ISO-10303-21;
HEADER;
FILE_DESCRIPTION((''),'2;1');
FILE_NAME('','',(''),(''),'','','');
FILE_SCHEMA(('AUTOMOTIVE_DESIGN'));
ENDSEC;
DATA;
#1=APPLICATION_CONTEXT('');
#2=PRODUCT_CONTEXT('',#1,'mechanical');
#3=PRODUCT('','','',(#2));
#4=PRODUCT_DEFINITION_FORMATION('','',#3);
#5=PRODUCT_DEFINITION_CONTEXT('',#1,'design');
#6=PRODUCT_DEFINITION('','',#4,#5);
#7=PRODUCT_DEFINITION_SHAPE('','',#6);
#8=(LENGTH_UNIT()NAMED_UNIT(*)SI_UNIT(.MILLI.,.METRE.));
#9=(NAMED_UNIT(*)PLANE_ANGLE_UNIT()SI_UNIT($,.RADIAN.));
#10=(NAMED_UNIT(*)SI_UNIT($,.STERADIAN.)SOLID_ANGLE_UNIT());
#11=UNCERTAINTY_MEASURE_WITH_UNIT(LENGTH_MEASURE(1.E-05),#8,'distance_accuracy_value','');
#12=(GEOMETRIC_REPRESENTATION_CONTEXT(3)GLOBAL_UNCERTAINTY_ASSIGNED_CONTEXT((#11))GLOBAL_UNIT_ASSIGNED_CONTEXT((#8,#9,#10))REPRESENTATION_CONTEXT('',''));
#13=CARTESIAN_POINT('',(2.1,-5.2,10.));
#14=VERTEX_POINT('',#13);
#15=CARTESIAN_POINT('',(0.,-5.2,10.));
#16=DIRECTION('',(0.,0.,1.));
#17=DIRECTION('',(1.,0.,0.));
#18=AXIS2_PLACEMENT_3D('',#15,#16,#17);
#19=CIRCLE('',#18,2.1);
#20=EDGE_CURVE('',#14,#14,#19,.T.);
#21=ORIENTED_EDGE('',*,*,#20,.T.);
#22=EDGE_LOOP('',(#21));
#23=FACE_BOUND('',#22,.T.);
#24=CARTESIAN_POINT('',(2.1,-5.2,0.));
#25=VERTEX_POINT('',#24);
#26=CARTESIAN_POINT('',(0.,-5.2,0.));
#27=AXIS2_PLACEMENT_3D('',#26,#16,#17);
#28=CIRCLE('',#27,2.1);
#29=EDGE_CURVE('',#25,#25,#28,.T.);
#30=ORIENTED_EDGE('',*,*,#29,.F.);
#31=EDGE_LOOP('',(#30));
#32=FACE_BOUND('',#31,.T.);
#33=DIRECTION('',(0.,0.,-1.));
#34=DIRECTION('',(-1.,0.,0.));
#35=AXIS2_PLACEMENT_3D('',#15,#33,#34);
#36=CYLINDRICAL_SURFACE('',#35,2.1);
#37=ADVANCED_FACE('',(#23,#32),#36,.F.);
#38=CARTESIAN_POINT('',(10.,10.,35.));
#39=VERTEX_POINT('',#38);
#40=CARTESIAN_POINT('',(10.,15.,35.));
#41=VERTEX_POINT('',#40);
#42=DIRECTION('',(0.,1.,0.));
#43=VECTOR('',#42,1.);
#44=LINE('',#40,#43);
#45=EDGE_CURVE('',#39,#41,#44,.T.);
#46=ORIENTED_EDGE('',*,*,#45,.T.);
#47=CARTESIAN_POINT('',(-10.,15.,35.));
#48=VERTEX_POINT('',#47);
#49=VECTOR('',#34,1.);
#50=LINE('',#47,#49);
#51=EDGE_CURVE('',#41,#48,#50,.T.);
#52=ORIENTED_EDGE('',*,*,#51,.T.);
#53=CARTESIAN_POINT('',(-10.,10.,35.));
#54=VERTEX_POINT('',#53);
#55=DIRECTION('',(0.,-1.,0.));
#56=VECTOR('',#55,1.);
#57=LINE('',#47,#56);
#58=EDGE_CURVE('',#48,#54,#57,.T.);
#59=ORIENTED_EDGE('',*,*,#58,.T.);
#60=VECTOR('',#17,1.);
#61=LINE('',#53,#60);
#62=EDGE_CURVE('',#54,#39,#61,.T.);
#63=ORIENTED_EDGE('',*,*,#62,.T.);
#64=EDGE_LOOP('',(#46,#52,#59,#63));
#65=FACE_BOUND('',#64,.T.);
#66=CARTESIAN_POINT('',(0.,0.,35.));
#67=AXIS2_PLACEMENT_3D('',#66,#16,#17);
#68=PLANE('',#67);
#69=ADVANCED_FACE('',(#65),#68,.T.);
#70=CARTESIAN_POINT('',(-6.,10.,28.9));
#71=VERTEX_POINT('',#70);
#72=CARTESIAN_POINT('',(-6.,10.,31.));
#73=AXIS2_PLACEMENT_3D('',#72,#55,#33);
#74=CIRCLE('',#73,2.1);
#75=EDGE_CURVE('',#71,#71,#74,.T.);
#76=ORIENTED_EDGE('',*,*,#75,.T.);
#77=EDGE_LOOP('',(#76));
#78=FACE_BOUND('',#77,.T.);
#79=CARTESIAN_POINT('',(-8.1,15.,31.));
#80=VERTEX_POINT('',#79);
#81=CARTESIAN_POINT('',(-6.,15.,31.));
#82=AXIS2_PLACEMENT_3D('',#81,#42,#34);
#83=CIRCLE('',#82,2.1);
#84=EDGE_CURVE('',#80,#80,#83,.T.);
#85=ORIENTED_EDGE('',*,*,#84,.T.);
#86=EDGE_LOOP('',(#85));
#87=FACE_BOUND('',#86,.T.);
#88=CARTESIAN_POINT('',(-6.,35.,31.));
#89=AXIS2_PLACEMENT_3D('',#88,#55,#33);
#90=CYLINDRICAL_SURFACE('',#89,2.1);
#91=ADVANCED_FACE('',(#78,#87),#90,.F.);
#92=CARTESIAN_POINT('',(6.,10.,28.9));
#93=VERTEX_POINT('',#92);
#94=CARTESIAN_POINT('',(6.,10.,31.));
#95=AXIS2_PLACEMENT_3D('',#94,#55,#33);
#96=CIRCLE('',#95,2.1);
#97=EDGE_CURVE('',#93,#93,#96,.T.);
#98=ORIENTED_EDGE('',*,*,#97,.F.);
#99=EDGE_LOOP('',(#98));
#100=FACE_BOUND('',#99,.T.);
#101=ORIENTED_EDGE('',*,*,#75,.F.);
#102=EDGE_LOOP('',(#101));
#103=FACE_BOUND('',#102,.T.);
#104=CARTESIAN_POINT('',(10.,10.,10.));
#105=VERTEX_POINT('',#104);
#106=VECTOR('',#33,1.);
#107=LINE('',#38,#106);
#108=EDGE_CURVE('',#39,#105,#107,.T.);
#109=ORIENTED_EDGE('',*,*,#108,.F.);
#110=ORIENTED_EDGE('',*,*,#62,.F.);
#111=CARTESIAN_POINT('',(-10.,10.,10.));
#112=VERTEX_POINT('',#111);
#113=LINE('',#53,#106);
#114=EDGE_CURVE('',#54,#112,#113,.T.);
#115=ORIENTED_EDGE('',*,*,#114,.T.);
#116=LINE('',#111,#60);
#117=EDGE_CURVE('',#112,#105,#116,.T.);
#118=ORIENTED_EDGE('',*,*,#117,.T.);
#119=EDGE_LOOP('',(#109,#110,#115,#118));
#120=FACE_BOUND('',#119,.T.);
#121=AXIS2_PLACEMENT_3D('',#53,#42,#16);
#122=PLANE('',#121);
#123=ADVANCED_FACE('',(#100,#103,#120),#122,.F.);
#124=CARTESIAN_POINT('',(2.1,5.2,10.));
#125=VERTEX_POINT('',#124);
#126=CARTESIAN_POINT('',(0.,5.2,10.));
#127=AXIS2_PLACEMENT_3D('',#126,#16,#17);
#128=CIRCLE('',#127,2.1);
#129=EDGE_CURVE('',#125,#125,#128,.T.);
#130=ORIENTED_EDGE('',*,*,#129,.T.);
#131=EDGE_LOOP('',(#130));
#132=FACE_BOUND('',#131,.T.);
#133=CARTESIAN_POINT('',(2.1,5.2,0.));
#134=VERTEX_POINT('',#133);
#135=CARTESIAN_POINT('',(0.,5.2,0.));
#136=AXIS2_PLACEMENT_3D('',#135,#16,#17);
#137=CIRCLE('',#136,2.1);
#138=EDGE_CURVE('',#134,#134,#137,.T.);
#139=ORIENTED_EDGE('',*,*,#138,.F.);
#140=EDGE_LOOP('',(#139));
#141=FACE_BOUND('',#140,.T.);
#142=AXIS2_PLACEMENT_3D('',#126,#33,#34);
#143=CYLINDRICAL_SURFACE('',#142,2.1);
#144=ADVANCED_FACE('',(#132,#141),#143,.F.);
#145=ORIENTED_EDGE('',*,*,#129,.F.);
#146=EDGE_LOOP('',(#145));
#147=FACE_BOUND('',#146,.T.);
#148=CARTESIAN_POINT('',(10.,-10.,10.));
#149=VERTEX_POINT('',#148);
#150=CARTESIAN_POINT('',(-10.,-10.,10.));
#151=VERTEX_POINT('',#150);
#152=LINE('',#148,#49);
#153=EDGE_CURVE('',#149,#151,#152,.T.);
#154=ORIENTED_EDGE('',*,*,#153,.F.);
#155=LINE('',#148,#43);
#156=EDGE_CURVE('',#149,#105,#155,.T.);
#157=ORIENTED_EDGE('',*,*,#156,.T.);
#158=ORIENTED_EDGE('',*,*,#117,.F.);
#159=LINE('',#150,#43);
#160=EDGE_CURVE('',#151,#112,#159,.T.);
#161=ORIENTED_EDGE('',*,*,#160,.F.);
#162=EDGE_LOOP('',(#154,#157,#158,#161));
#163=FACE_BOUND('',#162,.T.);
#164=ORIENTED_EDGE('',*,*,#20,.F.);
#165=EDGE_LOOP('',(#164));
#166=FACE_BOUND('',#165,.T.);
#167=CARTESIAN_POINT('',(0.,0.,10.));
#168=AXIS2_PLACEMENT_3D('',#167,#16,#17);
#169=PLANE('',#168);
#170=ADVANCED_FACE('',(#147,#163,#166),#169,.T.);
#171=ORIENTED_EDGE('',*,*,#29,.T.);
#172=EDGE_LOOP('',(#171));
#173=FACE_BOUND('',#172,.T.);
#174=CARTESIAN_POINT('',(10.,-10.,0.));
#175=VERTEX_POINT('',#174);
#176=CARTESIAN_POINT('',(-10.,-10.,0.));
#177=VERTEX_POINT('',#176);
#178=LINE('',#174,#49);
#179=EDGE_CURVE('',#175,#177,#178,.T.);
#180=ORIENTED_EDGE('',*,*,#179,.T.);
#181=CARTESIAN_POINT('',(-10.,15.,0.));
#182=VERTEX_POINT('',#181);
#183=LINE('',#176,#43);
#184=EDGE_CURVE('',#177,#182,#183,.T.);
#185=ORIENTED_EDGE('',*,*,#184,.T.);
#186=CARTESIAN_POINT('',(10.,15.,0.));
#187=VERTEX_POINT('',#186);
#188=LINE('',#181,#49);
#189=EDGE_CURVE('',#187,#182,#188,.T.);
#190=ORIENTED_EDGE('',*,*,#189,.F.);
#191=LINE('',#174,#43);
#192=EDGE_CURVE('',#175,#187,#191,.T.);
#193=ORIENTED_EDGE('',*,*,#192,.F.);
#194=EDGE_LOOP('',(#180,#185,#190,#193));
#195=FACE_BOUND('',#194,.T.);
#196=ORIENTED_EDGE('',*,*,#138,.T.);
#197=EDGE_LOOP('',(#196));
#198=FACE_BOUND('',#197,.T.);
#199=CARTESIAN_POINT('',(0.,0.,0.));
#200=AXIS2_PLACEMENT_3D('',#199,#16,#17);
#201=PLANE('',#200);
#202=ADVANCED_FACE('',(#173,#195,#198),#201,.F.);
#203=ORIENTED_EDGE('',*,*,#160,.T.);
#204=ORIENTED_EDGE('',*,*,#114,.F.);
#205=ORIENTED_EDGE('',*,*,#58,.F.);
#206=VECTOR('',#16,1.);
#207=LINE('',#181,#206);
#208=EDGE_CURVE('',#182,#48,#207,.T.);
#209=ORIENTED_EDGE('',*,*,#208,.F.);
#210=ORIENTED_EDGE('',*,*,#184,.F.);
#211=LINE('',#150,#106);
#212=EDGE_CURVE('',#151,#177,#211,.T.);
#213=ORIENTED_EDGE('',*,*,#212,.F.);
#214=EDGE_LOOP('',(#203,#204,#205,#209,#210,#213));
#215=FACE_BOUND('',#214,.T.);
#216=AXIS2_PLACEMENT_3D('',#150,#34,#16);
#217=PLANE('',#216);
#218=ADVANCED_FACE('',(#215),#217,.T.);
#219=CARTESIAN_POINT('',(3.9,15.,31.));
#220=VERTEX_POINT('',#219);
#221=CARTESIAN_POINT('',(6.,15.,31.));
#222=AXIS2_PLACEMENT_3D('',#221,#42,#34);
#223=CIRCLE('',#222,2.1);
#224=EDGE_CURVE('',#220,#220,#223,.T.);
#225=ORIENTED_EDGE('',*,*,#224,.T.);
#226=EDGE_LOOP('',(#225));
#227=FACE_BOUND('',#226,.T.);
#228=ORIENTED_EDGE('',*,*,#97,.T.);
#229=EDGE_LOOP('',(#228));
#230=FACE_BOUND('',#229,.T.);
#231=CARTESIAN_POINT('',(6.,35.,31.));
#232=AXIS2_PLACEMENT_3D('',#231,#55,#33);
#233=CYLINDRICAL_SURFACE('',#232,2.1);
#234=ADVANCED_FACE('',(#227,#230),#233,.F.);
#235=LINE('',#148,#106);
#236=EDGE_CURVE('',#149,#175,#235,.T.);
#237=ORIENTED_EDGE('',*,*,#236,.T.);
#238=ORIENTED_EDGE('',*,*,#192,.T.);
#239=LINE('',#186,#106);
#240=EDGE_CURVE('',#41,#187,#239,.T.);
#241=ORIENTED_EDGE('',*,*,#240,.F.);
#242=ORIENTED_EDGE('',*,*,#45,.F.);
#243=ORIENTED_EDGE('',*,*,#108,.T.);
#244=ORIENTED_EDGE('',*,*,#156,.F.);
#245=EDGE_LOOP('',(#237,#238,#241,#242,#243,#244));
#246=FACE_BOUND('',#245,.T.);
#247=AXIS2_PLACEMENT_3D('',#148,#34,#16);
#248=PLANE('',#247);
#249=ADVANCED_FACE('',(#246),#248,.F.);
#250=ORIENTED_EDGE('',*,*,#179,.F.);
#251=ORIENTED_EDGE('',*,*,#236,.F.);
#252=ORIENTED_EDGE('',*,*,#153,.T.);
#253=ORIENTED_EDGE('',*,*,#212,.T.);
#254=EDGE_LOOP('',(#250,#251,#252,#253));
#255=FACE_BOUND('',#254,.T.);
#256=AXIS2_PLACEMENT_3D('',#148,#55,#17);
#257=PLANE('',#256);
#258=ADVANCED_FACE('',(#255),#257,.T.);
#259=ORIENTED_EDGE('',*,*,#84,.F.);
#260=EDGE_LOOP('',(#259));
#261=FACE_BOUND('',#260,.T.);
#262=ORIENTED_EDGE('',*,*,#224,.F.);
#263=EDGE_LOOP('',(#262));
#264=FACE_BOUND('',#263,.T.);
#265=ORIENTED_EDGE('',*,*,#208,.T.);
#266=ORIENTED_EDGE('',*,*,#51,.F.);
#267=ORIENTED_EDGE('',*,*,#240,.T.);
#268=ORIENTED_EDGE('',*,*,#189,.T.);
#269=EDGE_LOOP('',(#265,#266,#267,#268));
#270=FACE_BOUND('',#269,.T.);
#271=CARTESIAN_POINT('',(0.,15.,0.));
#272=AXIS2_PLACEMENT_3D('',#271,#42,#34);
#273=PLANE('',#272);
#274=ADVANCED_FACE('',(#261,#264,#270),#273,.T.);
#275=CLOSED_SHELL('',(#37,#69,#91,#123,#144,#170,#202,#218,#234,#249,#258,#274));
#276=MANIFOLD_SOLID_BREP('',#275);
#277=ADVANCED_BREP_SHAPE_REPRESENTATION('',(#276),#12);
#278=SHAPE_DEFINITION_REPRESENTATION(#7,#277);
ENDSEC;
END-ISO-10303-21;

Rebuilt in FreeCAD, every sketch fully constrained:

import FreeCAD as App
import Part
import Sketcher
from FreeCAD import Vector
Q = App.Units.Quantity


def add_polygon(sketch, points):
    """Adds a closed chain of lines whose ends are joined by coincident constraints."""
    first, n = sketch.GeometryCount, len(points)
    for a, b in zip(points, points[1:] + points[:1]):
        sketch.addGeometry(Part.LineSegment(App.Vector(*a, 0), App.Vector(*b, 0)), False)
    for i in range(n):
        sketch.addConstraint(Sketcher.Constraint("Coincident", first + i, 2, first + (i + 1) % n, 1))

doc = App.newDocument("Part")
body = doc.addObject("PartDesign::Body", "Body")

sketch1 = body.newObject("Sketcher::SketchObject", "Sketch")
sketch1.AttachmentSupport = (doc.getObject("XY_Plane"), [""])
sketch1.MapMode = "FlatFace"
add_polygon(sketch1, [(-10, 10), (-10, -10), (10, -10), (10, 10)])
sketch1.addGeometry(Part.Circle(Vector(0, -5.2, 0), Vector(0, 0, 1), 2.1), False)
sketch1.addGeometry(Part.Circle(Vector(0, 5.2, 0), Vector(0, 0, 1), 2.1), False)
sketch1.addConstraint([
    Sketcher.Constraint("Vertical", 0),
    Sketcher.Constraint("Horizontal", 1),
    Sketcher.Constraint("Vertical", 2),
    Sketcher.Constraint("Horizontal", 3),
    Sketcher.Constraint("Equal", 4, 5),
    Sketcher.Constraint("Symmetric", 4, 3, 5, 3, -1, 1),
    Sketcher.Constraint("Symmetric", 0, 2, 2, 2, -1, 1),
    Sketcher.Constraint("PointOnObject", 4, 3, -2),
    Sketcher.Constraint("Equal", 3, 0),
    Sketcher.Constraint("Diameter", 4, Q("4.2 mm")),
    Sketcher.Constraint("DistanceX", 1, 1, 1, 2, Q("20 mm")),
    Sketcher.Constraint("DistanceY", 4, 3, -1, 1, Q("5.2 mm")),
])
pad1 = body.newObject("PartDesign::Pad", "Pad")
pad1.Profile = sketch1
pad1.Length = 10

sketch2 = body.newObject("Sketcher::SketchObject", "Sketch001")
sketch2.AttachmentSupport = (doc.getObject("XZ_Plane"), [""])
sketch2.MapMode = "FlatFace"
sketch2.AttachmentOffset = App.Placement(Vector(0, 0, -10), App.Rotation())
add_polygon(sketch2, [(-10, 0), (-10, 10), (10, 10), (10, 0)])
sketch2.addConstraint([
    Sketcher.Constraint("Vertical", 0),
    Sketcher.Constraint("Horizontal", 1),
    Sketcher.Constraint("Vertical", 2),
    Sketcher.Constraint("Horizontal", 3),
    Sketcher.Constraint("Symmetric", 2, 2, 3, 2, -1, 1),
    Sketcher.Constraint("DistanceX", 1, 1, 1, 2, Q("20 mm")),
    Sketcher.Constraint("DistanceY", 0, 1, 0, 2, Q("10 mm")),
])
pad2 = body.newObject("PartDesign::Pad", "Pad001")
pad2.Profile = sketch2
pad2.Length = 5
pad2.Reversed = True

sketch3 = body.newObject("Sketcher::SketchObject", "Sketch002")
sketch3.AttachmentSupport = (doc.getObject("XY_Plane"), [""])
sketch3.MapMode = "FlatFace"
sketch3.AttachmentOffset = App.Placement(Vector(0, 0, 10), App.Rotation())
add_polygon(sketch3, [(-10, 15), (-10, 10), (10, 10), (10, 15)])
sketch3.addConstraint([
    Sketcher.Constraint("Vertical", 0),
    Sketcher.Constraint("Horizontal", 1),
    Sketcher.Constraint("Vertical", 2),
    Sketcher.Constraint("Horizontal", 3),
    Sketcher.Constraint("DistanceX", 1, 1, 1, 2, Q("20 mm")),
    Sketcher.Constraint("DistanceY", 0, 2, 0, 1, Q("5 mm")),
    Sketcher.Constraint("DistanceX", 0, 2, -1, 1, Q("10 mm")),
    Sketcher.Constraint("DistanceY", -1, 1, 0, 2, Q("10 mm")),
])
pad3 = body.newObject("PartDesign::Pad", "Pad002")
pad3.Profile = sketch3
pad3.Length = 25

sketch4 = body.newObject("Sketcher::SketchObject", "Sketch003")
sketch4.AttachmentSupport = (doc.getObject("XZ_Plane"), [""])
sketch4.MapMode = "FlatFace"
sketch4.AttachmentOffset = App.Placement(Vector(0, 0, -10), App.Rotation())
sketch4.addGeometry([
    Part.Circle(Vector(-6, 31, 0), Vector(0, 0, 1), 2.1),
    Part.Circle(Vector(6, 31, 0), Vector(0, 0, 1), 2.1),
], False)
sketch4.addConstraint([
    Sketcher.Constraint("Equal", 0, 1),
    Sketcher.Constraint("Symmetric", 0, 3, 1, 3, -2),
    Sketcher.Constraint("Diameter", 0, Q("4.2 mm")),
    Sketcher.Constraint("DistanceX", 0, 3, -1, 1, Q("6 mm")),
    Sketcher.Constraint("DistanceY", -1, 1, 0, 3, Q("31 mm")),
])
pocket1 = body.newObject("PartDesign::Pocket", "Pocket")
pocket1.Profile = sketch4
pocket1.Length = 25

doc.recompute()
